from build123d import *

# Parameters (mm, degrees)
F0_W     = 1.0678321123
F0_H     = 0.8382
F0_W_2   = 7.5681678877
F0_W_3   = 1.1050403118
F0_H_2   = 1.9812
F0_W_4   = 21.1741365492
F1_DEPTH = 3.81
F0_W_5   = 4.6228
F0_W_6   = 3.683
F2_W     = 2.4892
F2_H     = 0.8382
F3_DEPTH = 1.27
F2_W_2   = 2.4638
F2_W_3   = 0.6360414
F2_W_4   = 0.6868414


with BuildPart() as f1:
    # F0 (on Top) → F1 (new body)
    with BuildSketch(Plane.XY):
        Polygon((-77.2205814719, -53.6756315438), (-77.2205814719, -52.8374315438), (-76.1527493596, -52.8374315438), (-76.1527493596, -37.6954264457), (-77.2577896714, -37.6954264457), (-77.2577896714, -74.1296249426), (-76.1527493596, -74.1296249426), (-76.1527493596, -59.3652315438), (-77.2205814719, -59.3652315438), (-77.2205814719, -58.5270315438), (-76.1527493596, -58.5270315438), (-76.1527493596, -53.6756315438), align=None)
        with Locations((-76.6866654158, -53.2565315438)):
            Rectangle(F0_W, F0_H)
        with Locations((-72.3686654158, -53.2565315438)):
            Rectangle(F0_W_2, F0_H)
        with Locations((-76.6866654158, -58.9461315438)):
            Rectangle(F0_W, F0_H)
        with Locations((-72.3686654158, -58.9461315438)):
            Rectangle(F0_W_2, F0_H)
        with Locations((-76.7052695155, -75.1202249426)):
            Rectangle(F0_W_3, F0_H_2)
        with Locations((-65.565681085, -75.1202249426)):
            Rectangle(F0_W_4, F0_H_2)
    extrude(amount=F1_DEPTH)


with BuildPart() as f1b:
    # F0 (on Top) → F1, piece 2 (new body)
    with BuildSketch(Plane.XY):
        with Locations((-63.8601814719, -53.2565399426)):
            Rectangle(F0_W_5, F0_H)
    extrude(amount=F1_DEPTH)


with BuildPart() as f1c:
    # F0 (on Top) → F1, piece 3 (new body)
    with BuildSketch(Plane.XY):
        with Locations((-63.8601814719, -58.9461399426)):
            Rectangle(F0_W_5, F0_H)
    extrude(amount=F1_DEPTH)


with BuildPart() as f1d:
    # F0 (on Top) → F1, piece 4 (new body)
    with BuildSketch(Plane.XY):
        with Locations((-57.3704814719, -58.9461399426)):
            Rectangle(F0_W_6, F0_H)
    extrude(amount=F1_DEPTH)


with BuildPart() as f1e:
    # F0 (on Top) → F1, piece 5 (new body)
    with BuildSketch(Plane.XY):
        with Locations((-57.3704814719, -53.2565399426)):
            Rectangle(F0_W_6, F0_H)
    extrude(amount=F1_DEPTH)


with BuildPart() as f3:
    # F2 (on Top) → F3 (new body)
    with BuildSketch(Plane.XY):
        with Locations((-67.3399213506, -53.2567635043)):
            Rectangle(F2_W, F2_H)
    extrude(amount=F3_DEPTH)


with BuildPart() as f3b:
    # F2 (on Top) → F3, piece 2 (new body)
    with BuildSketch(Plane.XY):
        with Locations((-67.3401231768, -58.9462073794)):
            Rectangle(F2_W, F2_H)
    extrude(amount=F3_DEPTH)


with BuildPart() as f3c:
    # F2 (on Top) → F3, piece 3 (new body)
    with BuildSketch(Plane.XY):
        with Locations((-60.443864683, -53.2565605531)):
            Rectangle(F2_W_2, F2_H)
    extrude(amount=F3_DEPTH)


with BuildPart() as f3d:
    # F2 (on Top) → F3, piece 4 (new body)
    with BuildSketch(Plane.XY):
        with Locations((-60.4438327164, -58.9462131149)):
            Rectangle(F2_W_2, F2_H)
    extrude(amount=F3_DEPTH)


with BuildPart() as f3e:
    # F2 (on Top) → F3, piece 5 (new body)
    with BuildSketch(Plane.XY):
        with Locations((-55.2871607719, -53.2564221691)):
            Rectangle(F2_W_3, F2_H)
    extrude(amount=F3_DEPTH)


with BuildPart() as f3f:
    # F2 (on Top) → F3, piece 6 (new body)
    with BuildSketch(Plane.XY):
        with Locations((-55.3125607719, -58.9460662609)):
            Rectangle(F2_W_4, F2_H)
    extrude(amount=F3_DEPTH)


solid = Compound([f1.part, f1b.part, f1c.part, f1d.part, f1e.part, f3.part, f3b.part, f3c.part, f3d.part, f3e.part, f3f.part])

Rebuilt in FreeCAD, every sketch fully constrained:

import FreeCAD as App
import Part
import Sketcher
from FreeCAD import Vector
Q = App.Units.Quantity

doc = App.newDocument("Part")
params = doc.addObject("Spreadsheet::Sheet", "Params")
for row, (alias, value) in enumerate([
    ("sketch1_height", "0.078 in"),
    ("sketch1_height2", "0.033 in"),
    ("sketch1_height3", "0.191 in"),
    ("pad1_length", "0.15 in"),
    ("sketch2_width", "0.182 in"),
    ("sketch2_height", "0.033 in"),
    ("pad2_length", "0.15 in"),
    ("sketch3_width", "0.182 in"),
    ("sketch3_height", "0.033 in"),
    ("pad3_length", "0.15 in"),
    ("sketch4_width", "0.145 in"),
    ("sketch4_height", "0.033 in"),
    ("pad4_length", "0.15 in"),
    ("sketch5_width", "0.145 in"),
    ("sketch5_height", "0.033 in"),
    ("pad5_length", "0.15 in"),
    ("sketch6_width", "0.098 in"),
    ("sketch6_height", "0.033 in"),
    ("pad6_length", "0.05 in"),
    ("sketch7_width", "0.098 in"),
    ("sketch7_height", "0.033 in"),
    ("pad7_length", "0.05 in"),
    ("sketch8_width", "0.097 in"),
    ("sketch8_height", "0.033 in"),
    ("pad8_length", "0.05 in"),
    ("sketch9_width", "0.097 in"),
    ("sketch9_height", "0.033 in"),
    ("pad9_length", "0.05 in"),
    ("sketch10_height", "0.033 in"),
    ("pad10_length", "0.05 in"),
    ("sketch11_height", "0.033 in"),
    ("pad11_length", "0.05 in"),
], start=1):
    params.set(f"A{row}", alias)
    params.set(f"B{row}", "=" + value)
    params.setAlias(f"B{row}", alias)

body = doc.addObject("PartDesign::Body", "Body")

sketch1 = body.newObject("Sketcher::SketchObject", "Sketch")
sketch1.AttachmentSupport = (doc.getObject("XY_Plane"), [""])
sketch1.MapMode = "FlatFace"
sketch1.addGeometry([
    Part.LineSegment(Vector(-76.2, -52.8, 0), Vector(-76.2, -37.7, 0)),
    Part.LineSegment(Vector(-76.2, -37.7, 0), Vector(-77.3, -37.7, 0)),
    Part.LineSegment(Vector(-77.3, -37.7, 0), Vector(-77.3, -76.1, 0)),
    Part.LineSegment(Vector(-77.3, -76.1, 0), Vector(-55, -76.1, 0)),
    Part.LineSegment(Vector(-55, -76.1, 0), Vector(-55, -74.1, 0)),
    Part.LineSegment(Vector(-55, -74.1, 0), Vector(-76.2, -74.1, 0)),
    Part.LineSegment(Vector(-76.2, -74.1, 0), Vector(-76.2, -59.4, 0)),
    Part.LineSegment(Vector(-76.2, -59.4, 0), Vector(-68.6, -59.4, 0)),
    Part.LineSegment(Vector(-68.6, -59.4, 0), Vector(-68.6, -58.5, 0)),
    Part.LineSegment(Vector(-68.6, -58.5, 0), Vector(-76.2, -58.5, 0)),
    Part.LineSegment(Vector(-76.2, -58.5, 0), Vector(-76.2, -53.7, 0)),
    Part.LineSegment(Vector(-76.2, -53.7, 0), Vector(-68.6, -53.7, 0)),
    Part.LineSegment(Vector(-68.6, -53.7, 0), Vector(-68.6, -52.8, 0)),
    Part.LineSegment(Vector(-68.6, -52.8, 0), Vector(-76.2, -52.8, 0)),
], False)
sketch1.addConstraint([
    Sketcher.Constraint("Coincident", 0, 2, 1, 1),
    Sketcher.Constraint("Coincident", 1, 2, 2, 1),
    Sketcher.Constraint("Coincident", 2, 2, 3, 1),
    Sketcher.Constraint("Coincident", 3, 2, 4, 1),
    Sketcher.Constraint("Coincident", 4, 2, 5, 1),
    Sketcher.Constraint("Coincident", 5, 2, 6, 1),
    Sketcher.Constraint("Coincident", 6, 2, 7, 1),
    Sketcher.Constraint("Coincident", 7, 2, 8, 1),
    Sketcher.Constraint("Coincident", 8, 2, 9, 1),
    Sketcher.Constraint("Coincident", 9, 2, 10, 1),
    Sketcher.Constraint("Coincident", 10, 2, 11, 1),
    Sketcher.Constraint("Coincident", 11, 2, 12, 1),
    Sketcher.Constraint("Coincident", 12, 2, 13, 1),
    Sketcher.Constraint("Coincident", 13, 2, 0, 1),
    Sketcher.Constraint("Vertical", 0),
    Sketcher.Constraint("Horizontal", 1),
    Sketcher.Constraint("Vertical", 2),
    Sketcher.Constraint("Horizontal", 3),
    Sketcher.Constraint("Vertical", 4),
    Sketcher.Constraint("Horizontal", 5),
    Sketcher.Constraint("Vertical", 6),
    Sketcher.Constraint("Horizontal", 7),
    Sketcher.Constraint("Vertical", 8),
    Sketcher.Constraint("Horizontal", 9),
    Sketcher.Constraint("Vertical", 10),
    Sketcher.Constraint("Horizontal", 11),
    Sketcher.Constraint("Vertical", 12),
    Sketcher.Constraint("Horizontal", 13),
    Sketcher.Constraint("Vertical", 0, 2, 5, 2),
    Sketcher.Constraint("Vertical", 6, 2, 9, 2),
    Sketcher.Constraint("Vertical", 8, 2, 11, 2),
    Sketcher.Constraint("Equal", 8, 12),
    Sketcher.Constraint("DistanceY", 4, 1, 4, 2, Q("0.078 in")),
    Sketcher.Constraint("DistanceY", 8, 1, 8, 2, Q("0.033 in")),
    Sketcher.Constraint("DistanceY", 10, 1, 10, 2, Q("0.191 in")),
    Sketcher.Constraint("DistanceY", 2, 2, 2, 1, Q("38.415398 mm")),
    Sketcher.Constraint("DistanceX", 1, 2, 1, 1, Q("1.10504 mm")),
    Sketcher.Constraint("DistanceX", 3, 1, 3, 2, Q("22.279177 mm")),
    Sketcher.Constraint("DistanceX", 7, 1, 7, 2, Q("7.568168 mm")),
    Sketcher.Constraint("DistanceY", 0, 1, 0, 2, Q("15.142005 mm")),
    Sketcher.Constraint("DistanceX", 0, 2, -1, 1, Q("76.152749 mm")),
    Sketcher.Constraint("DistanceY", 6, 2, -1, 1, Q("59.365232 mm")),
])
sketch1.setExpression("Constraints[32]", "Params.sketch1_height")
sketch1.setExpression("Constraints[33]", "Params.sketch1_height2")
sketch1.setExpression("Constraints[34]", "Params.sketch1_height3")
pad1 = body.newObject("PartDesign::Pad", "Pad")
pad1.Profile = sketch1
pad1.setExpression("Length", "Params.pad1_length")
body2 = doc.addObject("PartDesign::Body", "Body001")

sketch2 = body2.newObject("Sketcher::SketchObject", "Sketch001")
sketch2.AttachmentSupport = (doc.getObject("XY_Plane001"), [""])
sketch2.MapMode = "FlatFace"
sketch2.addGeometry([
    Part.LineSegment(Vector(-66.2, -52.8, 0), Vector(-66.2, -53.7, 0)),
    Part.LineSegment(Vector(-66.2, -53.7, 0), Vector(-61.5, -53.7, 0)),
    Part.LineSegment(Vector(-61.5, -53.7, 0), Vector(-61.5, -52.8, 0)),
    Part.LineSegment(Vector(-61.5, -52.8, 0), Vector(-66.2, -52.8, 0)),
], False)
sketch2.addConstraint([
    Sketcher.Constraint("Coincident", 0, 2, 1, 1),
    Sketcher.Constraint("Coincident", 1, 2, 2, 1),
    Sketcher.Constraint("Coincident", 2, 2, 3, 1),
    Sketcher.Constraint("Coincident", 3, 2, 0, 1),
    Sketcher.Constraint("Vertical", 0),
    Sketcher.Constraint("Horizontal", 1),
    Sketcher.Constraint("Vertical", 2),
    Sketcher.Constraint("Horizontal", 3),
    Sketcher.Constraint("DistanceX", 1, 1, 1, 2, Q("0.182 in")),
    Sketcher.Constraint("DistanceY", 0, 2, 0, 1, Q("0.033 in")),
    Sketcher.Constraint("DistanceX", 0, 2, -1, 1, Q("66.171581 mm")),
    Sketcher.Constraint("DistanceY", 0, 2, -1, 1, Q("53.67564 mm")),
])
sketch2.setExpression("Constraints[8]", "Params.sketch2_width")
sketch2.setExpression("Constraints[9]", "Params.sketch2_height")
pad2 = body2.newObject("PartDesign::Pad", "Pad001")
pad2.Profile = sketch2
pad2.setExpression("Length", "Params.pad2_length")
body3 = doc.addObject("PartDesign::Body", "Body002")

sketch3 = body3.newObject("Sketcher::SketchObject", "Sketch002")
sketch3.AttachmentSupport = (doc.getObject("XY_Plane002"), [""])
sketch3.MapMode = "FlatFace"
sketch3.addGeometry([
    Part.LineSegment(Vector(-66.2, -58.5, 0), Vector(-66.2, -59.4, 0)),
    Part.LineSegment(Vector(-66.2, -59.4, 0), Vector(-61.5, -59.4, 0)),
    Part.LineSegment(Vector(-61.5, -59.4, 0), Vector(-61.5, -58.5, 0)),
    Part.LineSegment(Vector(-61.5, -58.5, 0), Vector(-66.2, -58.5, 0)),
], False)
sketch3.addConstraint([
    Sketcher.Constraint("Coincident", 0, 2, 1, 1),
    Sketcher.Constraint("Coincident", 1, 2, 2, 1),
    Sketcher.Constraint("Coincident", 2, 2, 3, 1),
    Sketcher.Constraint("Coincident", 3, 2, 0, 1),
    Sketcher.Constraint("Vertical", 0),
    Sketcher.Constraint("Horizontal", 1),
    Sketcher.Constraint("Vertical", 2),
    Sketcher.Constraint("Horizontal", 3),
    Sketcher.Constraint("DistanceX", 1, 1, 1, 2, Q("0.182 in")),
    Sketcher.Constraint("DistanceY", 0, 2, 0, 1, Q("0.033 in")),
    Sketcher.Constraint("DistanceX", 0, 2, -1, 1, Q("66.171581 mm")),
    Sketcher.Constraint("DistanceY", 0, 2, -1, 1, Q("59.36524 mm")),
])
sketch3.setExpression("Constraints[8]", "Params.sketch3_width")
sketch3.setExpression("Constraints[9]", "Params.sketch3_height")
pad3 = body3.newObject("PartDesign::Pad", "Pad002")
pad3.Profile = sketch3
pad3.setExpression("Length", "Params.pad3_length")
body4 = doc.addObject("PartDesign::Body", "Body003")

sketch4 = body4.newObject("Sketcher::SketchObject", "Sketch003")
sketch4.AttachmentSupport = (doc.getObject("XY_Plane003"), [""])
sketch4.MapMode = "FlatFace"
sketch4.addGeometry([
    Part.LineSegment(Vector(-59.2, -58.5, 0), Vector(-59.2, -59.4, 0)),
    Part.LineSegment(Vector(-59.2, -59.4, 0), Vector(-55.5, -59.4, 0)),
    Part.LineSegment(Vector(-55.5, -59.4, 0), Vector(-55.5, -58.5, 0)),
    Part.LineSegment(Vector(-55.5, -58.5, 0), Vector(-59.2, -58.5, 0)),
], False)
sketch4.addConstraint([
    Sketcher.Constraint("Coincident", 0, 2, 1, 1),
    Sketcher.Constraint("Coincident", 1, 2, 2, 1),
    Sketcher.Constraint("Coincident", 2, 2, 3, 1),
    Sketcher.Constraint("Coincident", 3, 2, 0, 1),
    Sketcher.Constraint("Vertical", 0),
    Sketcher.Constraint("Horizontal", 1),
    Sketcher.Constraint("Vertical", 2),
    Sketcher.Constraint("Horizontal", 3),
    Sketcher.Constraint("DistanceX", 1, 1, 1, 2, Q("0.145 in")),
    Sketcher.Constraint("DistanceY", 0, 2, 0, 1, Q("0.033 in")),
    Sketcher.Constraint("DistanceX", 0, 2, -1, 1, Q("59.211981 mm")),
    Sketcher.Constraint("DistanceY", 0, 2, -1, 1, Q("59.36524 mm")),
])
sketch4.setExpression("Constraints[8]", "Params.sketch4_width")
sketch4.setExpression("Constraints[9]", "Params.sketch4_height")
pad4 = body4.newObject("PartDesign::Pad", "Pad003")
pad4.Profile = sketch4
pad4.setExpression("Length", "Params.pad4_length")
body5 = doc.addObject("PartDesign::Body", "Body004")

sketch5 = body5.newObject("Sketcher::SketchObject", "Sketch004")
sketch5.AttachmentSupport = (doc.getObject("XY_Plane004"), [""])
sketch5.MapMode = "FlatFace"
sketch5.addGeometry([
    Part.LineSegment(Vector(-59.2, -52.8, 0), Vector(-59.2, -53.7, 0)),
    Part.LineSegment(Vector(-59.2, -53.7, 0), Vector(-55.5, -53.7, 0)),
    Part.LineSegment(Vector(-55.5, -53.7, 0), Vector(-55.5, -52.8, 0)),
    Part.LineSegment(Vector(-55.5, -52.8, 0), Vector(-59.2, -52.8, 0)),
], False)
sketch5.addConstraint([
    Sketcher.Constraint("Coincident", 0, 2, 1, 1),
    Sketcher.Constraint("Coincident", 1, 2, 2, 1),
    Sketcher.Constraint("Coincident", 2, 2, 3, 1),
    Sketcher.Constraint("Coincident", 3, 2, 0, 1),
    Sketcher.Constraint("Vertical", 0),
    Sketcher.Constraint("Horizontal", 1),
    Sketcher.Constraint("Vertical", 2),
    Sketcher.Constraint("Horizontal", 3),
    Sketcher.Constraint("DistanceX", 1, 1, 1, 2, Q("0.145 in")),
    Sketcher.Constraint("DistanceY", 0, 2, 0, 1, Q("0.033 in")),
    Sketcher.Constraint("DistanceX", 0, 2, -1, 1, Q("59.211981 mm")),
    Sketcher.Constraint("DistanceY", 0, 2, -1, 1, Q("53.67564 mm")),
])
sketch5.setExpression("Constraints[8]", "Params.sketch5_width")
sketch5.setExpression("Constraints[9]", "Params.sketch5_height")
pad5 = body5.newObject("PartDesign::Pad", "Pad004")
pad5.Profile = sketch5
pad5.setExpression("Length", "Params.pad5_length")
body6 = doc.addObject("PartDesign::Body", "Body005")

sketch6 = body6.newObject("Sketcher::SketchObject", "Sketch005")
sketch6.AttachmentSupport = (doc.getObject("XY_Plane005"), [""])
sketch6.MapMode = "FlatFace"
sketch6.addGeometry([
    Part.LineSegment(Vector(-68.6, -52.8, 0), Vector(-68.6, -53.7, 0)),
    Part.LineSegment(Vector(-68.6, -53.7, 0), Vector(-66.1, -53.7, 0)),
    Part.LineSegment(Vector(-66.1, -53.7, 0), Vector(-66.1, -52.8, 0)),
    Part.LineSegment(Vector(-66.1, -52.8, 0), Vector(-68.6, -52.8, 0)),
], False)
sketch6.addConstraint([
    Sketcher.Constraint("Coincident", 0, 2, 1, 1),
    Sketcher.Constraint("Coincident", 1, 2, 2, 1),
    Sketcher.Constraint("Coincident", 2, 2, 3, 1),
    Sketcher.Constraint("Coincident", 3, 2, 0, 1),
    Sketcher.Constraint("Vertical", 0),
    Sketcher.Constraint("Horizontal", 1),
    Sketcher.Constraint("Vertical", 2),
    Sketcher.Constraint("Horizontal", 3),
    Sketcher.Constraint("DistanceX", 1, 1, 1, 2, Q("0.098 in")),
    Sketcher.Constraint("DistanceY", 0, 2, 0, 1, Q("0.033 in")),
    Sketcher.Constraint("DistanceX", 0, 2, -1, 1, Q("68.584521 mm")),
    Sketcher.Constraint("DistanceY", 0, 2, -1, 1, Q("53.675864 mm")),
])
sketch6.setExpression("Constraints[8]", "Params.sketch6_width")
sketch6.setExpression("Constraints[9]", "Params.sketch6_height")
pad6 = body6.newObject("PartDesign::Pad", "Pad005")
pad6.Profile = sketch6
pad6.setExpression("Length", "Params.pad6_length")
body7 = doc.addObject("PartDesign::Body", "Body006")

sketch7 = body7.newObject("Sketcher::SketchObject", "Sketch006")
sketch7.AttachmentSupport = (doc.getObject("XY_Plane006"), [""])
sketch7.MapMode = "FlatFace"
sketch7.addGeometry([
    Part.LineSegment(Vector(-68.6, -58.5, 0), Vector(-68.6, -59.4, 0)),
    Part.LineSegment(Vector(-68.6, -59.4, 0), Vector(-66.1, -59.4, 0)),
    Part.LineSegment(Vector(-66.1, -59.4, 0), Vector(-66.1, -58.5, 0)),
    Part.LineSegment(Vector(-66.1, -58.5, 0), Vector(-68.6, -58.5, 0)),
], False)
sketch7.addConstraint([
    Sketcher.Constraint("Coincident", 0, 2, 1, 1),
    Sketcher.Constraint("Coincident", 1, 2, 2, 1),
    Sketcher.Constraint("Coincident", 2, 2, 3, 1),
    Sketcher.Constraint("Coincident", 3, 2, 0, 1),
    Sketcher.Constraint("Vertical", 0),
    Sketcher.Constraint("Horizontal", 1),
    Sketcher.Constraint("Vertical", 2),
    Sketcher.Constraint("Horizontal", 3),
    Sketcher.Constraint("DistanceX", 1, 1, 1, 2, Q("0.098 in")),
    Sketcher.Constraint("DistanceY", 0, 2, 0, 1, Q("0.033 in")),
    Sketcher.Constraint("DistanceX", 0, 2, -1, 1, Q("68.584723 mm")),
    Sketcher.Constraint("DistanceY", 0, 2, -1, 1, Q("59.365307 mm")),
])
sketch7.setExpression("Constraints[8]", "Params.sketch7_width")
sketch7.setExpression("Constraints[9]", "Params.sketch7_height")
pad7 = body7.newObject("PartDesign::Pad", "Pad006")
pad7.Profile = sketch7
pad7.setExpression("Length", "Params.pad7_length")
body8 = doc.addObject("PartDesign::Body", "Body007")

sketch8 = body8.newObject("Sketcher::SketchObject", "Sketch007")
sketch8.AttachmentSupport = (doc.getObject("XY_Plane007"), [""])
sketch8.MapMode = "FlatFace"
sketch8.addGeometry([
    Part.LineSegment(Vector(-61.7, -52.8, 0), Vector(-61.7, -53.7, 0)),
    Part.LineSegment(Vector(-61.7, -53.7, 0), Vector(-59.2, -53.7, 0)),
    Part.LineSegment(Vector(-59.2, -53.7, 0), Vector(-59.2, -52.8, 0)),
    Part.LineSegment(Vector(-59.2, -52.8, 0), Vector(-61.7, -52.8, 0)),
], False)
sketch8.addConstraint([
    Sketcher.Constraint("Coincident", 0, 2, 1, 1),
    Sketcher.Constraint("Coincident", 1, 2, 2, 1),
    Sketcher.Constraint("Coincident", 2, 2, 3, 1),
    Sketcher.Constraint("Coincident", 3, 2, 0, 1),
    Sketcher.Constraint("Vertical", 0),
    Sketcher.Constraint("Horizontal", 1),
    Sketcher.Constraint("Vertical", 2),
    Sketcher.Constraint("Horizontal", 3),
    Sketcher.Constraint("DistanceX", 1, 1, 1, 2, Q("0.097 in")),
    Sketcher.Constraint("DistanceY", 0, 2, 0, 1, Q("0.033 in")),
    Sketcher.Constraint("DistanceY", 0, 2, -1, 1, Q("53.675661 mm")),
    Sketcher.Constraint("DistanceX", 0, 2, -1, 1, Q("61.675765 mm")),
])
sketch8.setExpression("Constraints[8]", "Params.sketch8_width")
sketch8.setExpression("Constraints[9]", "Params.sketch8_height")
pad8 = body8.newObject("PartDesign::Pad", "Pad007")
pad8.Profile = sketch8
pad8.setExpression("Length", "Params.pad8_length")
body9 = doc.addObject("PartDesign::Body", "Body008")

sketch9 = body9.newObject("Sketcher::SketchObject", "Sketch008")
sketch9.AttachmentSupport = (doc.getObject("XY_Plane008"), [""])
sketch9.MapMode = "FlatFace"
sketch9.addGeometry([
    Part.LineSegment(Vector(-61.7, -58.5, 0), Vector(-61.7, -59.4, 0)),
    Part.LineSegment(Vector(-61.7, -59.4, 0), Vector(-59.2, -59.4, 0)),
    Part.LineSegment(Vector(-59.2, -59.4, 0), Vector(-59.2, -58.5, 0)),
    Part.LineSegment(Vector(-59.2, -58.5, 0), Vector(-61.7, -58.5, 0)),
], False)
sketch9.addConstraint([
    Sketcher.Constraint("Coincident", 0, 2, 1, 1),
    Sketcher.Constraint("Coincident", 1, 2, 2, 1),
    Sketcher.Constraint("Coincident", 2, 2, 3, 1),
    Sketcher.Constraint("Coincident", 3, 2, 0, 1),
    Sketcher.Constraint("Vertical", 0),
    Sketcher.Constraint("Horizontal", 1),
    Sketcher.Constraint("Vertical", 2),
    Sketcher.Constraint("Horizontal", 3),
    Sketcher.Constraint("DistanceX", 1, 1, 1, 2, Q("0.097 in")),
    Sketcher.Constraint("DistanceY", 0, 2, 0, 1, Q("0.033 in")),
    Sketcher.Constraint("DistanceX", 0, 2, -1, 1, Q("61.675733 mm")),
    Sketcher.Constraint("DistanceY", 0, 2, -1, 1, Q("59.365313 mm")),
])
sketch9.setExpression("Constraints[8]", "Params.sketch9_width")
sketch9.setExpression("Constraints[9]", "Params.sketch9_height")
pad9 = body9.newObject("PartDesign::Pad", "Pad008")
pad9.Profile = sketch9
pad9.setExpression("Length", "Params.pad9_length")
body10 = doc.addObject("PartDesign::Body", "Body009")

sketch10 = body10.newObject("Sketcher::SketchObject", "Sketch009")
sketch10.AttachmentSupport = (doc.getObject("XY_Plane009"), [""])
sketch10.MapMode = "FlatFace"
sketch10.addGeometry([
    Part.LineSegment(Vector(-55.6, -52.8, 0), Vector(-55.6, -53.7, 0)),
    Part.LineSegment(Vector(-55.6, -53.7, 0), Vector(-55, -53.7, 0)),
    Part.LineSegment(Vector(-55, -53.7, 0), Vector(-55, -52.8, 0)),
    Part.LineSegment(Vector(-55, -52.8, 0), Vector(-55.6, -52.8, 0)),
], False)
sketch10.addConstraint([
    Sketcher.Constraint("Coincident", 0, 2, 1, 1),
    Sketcher.Constraint("Coincident", 1, 2, 2, 1),
    Sketcher.Constraint("Coincident", 2, 2, 3, 1),
    Sketcher.Constraint("Coincident", 3, 2, 0, 1),
    Sketcher.Constraint("Vertical", 0),
    Sketcher.Constraint("Horizontal", 1),
    Sketcher.Constraint("Vertical", 2),
    Sketcher.Constraint("Horizontal", 3),
    Sketcher.Constraint("DistanceY", 0, 2, 0, 1, Q("0.033 in")),
    Sketcher.Constraint("DistanceX", 1, 1, 1, 2, Q("0.636041 mm")),
    Sketcher.Constraint("DistanceX", 0, 2, -1, 1, Q("55.605181 mm")),
    Sketcher.Constraint("DistanceY", 0, 2, -1, 1, Q("53.675522 mm")),
])
sketch10.setExpression("Constraints[8]", "Params.sketch10_height")
pad10 = body10.newObject("PartDesign::Pad", "Pad009")
pad10.Profile = sketch10
pad10.setExpression("Length", "Params.pad10_length")
body11 = doc.addObject("PartDesign::Body", "Body010")

sketch11 = body11.newObject("Sketcher::SketchObject", "Sketch010")
sketch11.AttachmentSupport = (doc.getObject("XY_Plane010"), [""])
sketch11.MapMode = "FlatFace"
sketch11.addGeometry([
    Part.LineSegment(Vector(-55.7, -58.5, 0), Vector(-55.7, -59.4, 0)),
    Part.LineSegment(Vector(-55.7, -59.4, 0), Vector(-55, -59.4, 0)),
    Part.LineSegment(Vector(-55, -59.4, 0), Vector(-55, -58.5, 0)),
    Part.LineSegment(Vector(-55, -58.5, 0), Vector(-55.7, -58.5, 0)),
], False)
sketch11.addConstraint([
    Sketcher.Constraint("Coincident", 0, 2, 1, 1),
    Sketcher.Constraint("Coincident", 1, 2, 2, 1),
    Sketcher.Constraint("Coincident", 2, 2, 3, 1),
    Sketcher.Constraint("Coincident", 3, 2, 0, 1),
    Sketcher.Constraint("Vertical", 0),
    Sketcher.Constraint("Horizontal", 1),
    Sketcher.Constraint("Vertical", 2),
    Sketcher.Constraint("Horizontal", 3),
    Sketcher.Constraint("DistanceY", 0, 2, 0, 1, Q("0.033 in")),
    Sketcher.Constraint("DistanceX", 1, 1, 1, 2, Q("0.686841 mm")),
    Sketcher.Constraint("DistanceX", 0, 2, -1, 1, Q("55.655981 mm")),
    Sketcher.Constraint("DistanceY", 0, 2, -1, 1, Q("59.365166 mm")),
])
sketch11.setExpression("Constraints[8]", "Params.sketch11_height")
pad11 = body11.newObject("PartDesign::Pad", "Pad010")
pad11.Profile = sketch11
pad11.setExpression("Length", "Params.pad11_length")

doc.recompute()
